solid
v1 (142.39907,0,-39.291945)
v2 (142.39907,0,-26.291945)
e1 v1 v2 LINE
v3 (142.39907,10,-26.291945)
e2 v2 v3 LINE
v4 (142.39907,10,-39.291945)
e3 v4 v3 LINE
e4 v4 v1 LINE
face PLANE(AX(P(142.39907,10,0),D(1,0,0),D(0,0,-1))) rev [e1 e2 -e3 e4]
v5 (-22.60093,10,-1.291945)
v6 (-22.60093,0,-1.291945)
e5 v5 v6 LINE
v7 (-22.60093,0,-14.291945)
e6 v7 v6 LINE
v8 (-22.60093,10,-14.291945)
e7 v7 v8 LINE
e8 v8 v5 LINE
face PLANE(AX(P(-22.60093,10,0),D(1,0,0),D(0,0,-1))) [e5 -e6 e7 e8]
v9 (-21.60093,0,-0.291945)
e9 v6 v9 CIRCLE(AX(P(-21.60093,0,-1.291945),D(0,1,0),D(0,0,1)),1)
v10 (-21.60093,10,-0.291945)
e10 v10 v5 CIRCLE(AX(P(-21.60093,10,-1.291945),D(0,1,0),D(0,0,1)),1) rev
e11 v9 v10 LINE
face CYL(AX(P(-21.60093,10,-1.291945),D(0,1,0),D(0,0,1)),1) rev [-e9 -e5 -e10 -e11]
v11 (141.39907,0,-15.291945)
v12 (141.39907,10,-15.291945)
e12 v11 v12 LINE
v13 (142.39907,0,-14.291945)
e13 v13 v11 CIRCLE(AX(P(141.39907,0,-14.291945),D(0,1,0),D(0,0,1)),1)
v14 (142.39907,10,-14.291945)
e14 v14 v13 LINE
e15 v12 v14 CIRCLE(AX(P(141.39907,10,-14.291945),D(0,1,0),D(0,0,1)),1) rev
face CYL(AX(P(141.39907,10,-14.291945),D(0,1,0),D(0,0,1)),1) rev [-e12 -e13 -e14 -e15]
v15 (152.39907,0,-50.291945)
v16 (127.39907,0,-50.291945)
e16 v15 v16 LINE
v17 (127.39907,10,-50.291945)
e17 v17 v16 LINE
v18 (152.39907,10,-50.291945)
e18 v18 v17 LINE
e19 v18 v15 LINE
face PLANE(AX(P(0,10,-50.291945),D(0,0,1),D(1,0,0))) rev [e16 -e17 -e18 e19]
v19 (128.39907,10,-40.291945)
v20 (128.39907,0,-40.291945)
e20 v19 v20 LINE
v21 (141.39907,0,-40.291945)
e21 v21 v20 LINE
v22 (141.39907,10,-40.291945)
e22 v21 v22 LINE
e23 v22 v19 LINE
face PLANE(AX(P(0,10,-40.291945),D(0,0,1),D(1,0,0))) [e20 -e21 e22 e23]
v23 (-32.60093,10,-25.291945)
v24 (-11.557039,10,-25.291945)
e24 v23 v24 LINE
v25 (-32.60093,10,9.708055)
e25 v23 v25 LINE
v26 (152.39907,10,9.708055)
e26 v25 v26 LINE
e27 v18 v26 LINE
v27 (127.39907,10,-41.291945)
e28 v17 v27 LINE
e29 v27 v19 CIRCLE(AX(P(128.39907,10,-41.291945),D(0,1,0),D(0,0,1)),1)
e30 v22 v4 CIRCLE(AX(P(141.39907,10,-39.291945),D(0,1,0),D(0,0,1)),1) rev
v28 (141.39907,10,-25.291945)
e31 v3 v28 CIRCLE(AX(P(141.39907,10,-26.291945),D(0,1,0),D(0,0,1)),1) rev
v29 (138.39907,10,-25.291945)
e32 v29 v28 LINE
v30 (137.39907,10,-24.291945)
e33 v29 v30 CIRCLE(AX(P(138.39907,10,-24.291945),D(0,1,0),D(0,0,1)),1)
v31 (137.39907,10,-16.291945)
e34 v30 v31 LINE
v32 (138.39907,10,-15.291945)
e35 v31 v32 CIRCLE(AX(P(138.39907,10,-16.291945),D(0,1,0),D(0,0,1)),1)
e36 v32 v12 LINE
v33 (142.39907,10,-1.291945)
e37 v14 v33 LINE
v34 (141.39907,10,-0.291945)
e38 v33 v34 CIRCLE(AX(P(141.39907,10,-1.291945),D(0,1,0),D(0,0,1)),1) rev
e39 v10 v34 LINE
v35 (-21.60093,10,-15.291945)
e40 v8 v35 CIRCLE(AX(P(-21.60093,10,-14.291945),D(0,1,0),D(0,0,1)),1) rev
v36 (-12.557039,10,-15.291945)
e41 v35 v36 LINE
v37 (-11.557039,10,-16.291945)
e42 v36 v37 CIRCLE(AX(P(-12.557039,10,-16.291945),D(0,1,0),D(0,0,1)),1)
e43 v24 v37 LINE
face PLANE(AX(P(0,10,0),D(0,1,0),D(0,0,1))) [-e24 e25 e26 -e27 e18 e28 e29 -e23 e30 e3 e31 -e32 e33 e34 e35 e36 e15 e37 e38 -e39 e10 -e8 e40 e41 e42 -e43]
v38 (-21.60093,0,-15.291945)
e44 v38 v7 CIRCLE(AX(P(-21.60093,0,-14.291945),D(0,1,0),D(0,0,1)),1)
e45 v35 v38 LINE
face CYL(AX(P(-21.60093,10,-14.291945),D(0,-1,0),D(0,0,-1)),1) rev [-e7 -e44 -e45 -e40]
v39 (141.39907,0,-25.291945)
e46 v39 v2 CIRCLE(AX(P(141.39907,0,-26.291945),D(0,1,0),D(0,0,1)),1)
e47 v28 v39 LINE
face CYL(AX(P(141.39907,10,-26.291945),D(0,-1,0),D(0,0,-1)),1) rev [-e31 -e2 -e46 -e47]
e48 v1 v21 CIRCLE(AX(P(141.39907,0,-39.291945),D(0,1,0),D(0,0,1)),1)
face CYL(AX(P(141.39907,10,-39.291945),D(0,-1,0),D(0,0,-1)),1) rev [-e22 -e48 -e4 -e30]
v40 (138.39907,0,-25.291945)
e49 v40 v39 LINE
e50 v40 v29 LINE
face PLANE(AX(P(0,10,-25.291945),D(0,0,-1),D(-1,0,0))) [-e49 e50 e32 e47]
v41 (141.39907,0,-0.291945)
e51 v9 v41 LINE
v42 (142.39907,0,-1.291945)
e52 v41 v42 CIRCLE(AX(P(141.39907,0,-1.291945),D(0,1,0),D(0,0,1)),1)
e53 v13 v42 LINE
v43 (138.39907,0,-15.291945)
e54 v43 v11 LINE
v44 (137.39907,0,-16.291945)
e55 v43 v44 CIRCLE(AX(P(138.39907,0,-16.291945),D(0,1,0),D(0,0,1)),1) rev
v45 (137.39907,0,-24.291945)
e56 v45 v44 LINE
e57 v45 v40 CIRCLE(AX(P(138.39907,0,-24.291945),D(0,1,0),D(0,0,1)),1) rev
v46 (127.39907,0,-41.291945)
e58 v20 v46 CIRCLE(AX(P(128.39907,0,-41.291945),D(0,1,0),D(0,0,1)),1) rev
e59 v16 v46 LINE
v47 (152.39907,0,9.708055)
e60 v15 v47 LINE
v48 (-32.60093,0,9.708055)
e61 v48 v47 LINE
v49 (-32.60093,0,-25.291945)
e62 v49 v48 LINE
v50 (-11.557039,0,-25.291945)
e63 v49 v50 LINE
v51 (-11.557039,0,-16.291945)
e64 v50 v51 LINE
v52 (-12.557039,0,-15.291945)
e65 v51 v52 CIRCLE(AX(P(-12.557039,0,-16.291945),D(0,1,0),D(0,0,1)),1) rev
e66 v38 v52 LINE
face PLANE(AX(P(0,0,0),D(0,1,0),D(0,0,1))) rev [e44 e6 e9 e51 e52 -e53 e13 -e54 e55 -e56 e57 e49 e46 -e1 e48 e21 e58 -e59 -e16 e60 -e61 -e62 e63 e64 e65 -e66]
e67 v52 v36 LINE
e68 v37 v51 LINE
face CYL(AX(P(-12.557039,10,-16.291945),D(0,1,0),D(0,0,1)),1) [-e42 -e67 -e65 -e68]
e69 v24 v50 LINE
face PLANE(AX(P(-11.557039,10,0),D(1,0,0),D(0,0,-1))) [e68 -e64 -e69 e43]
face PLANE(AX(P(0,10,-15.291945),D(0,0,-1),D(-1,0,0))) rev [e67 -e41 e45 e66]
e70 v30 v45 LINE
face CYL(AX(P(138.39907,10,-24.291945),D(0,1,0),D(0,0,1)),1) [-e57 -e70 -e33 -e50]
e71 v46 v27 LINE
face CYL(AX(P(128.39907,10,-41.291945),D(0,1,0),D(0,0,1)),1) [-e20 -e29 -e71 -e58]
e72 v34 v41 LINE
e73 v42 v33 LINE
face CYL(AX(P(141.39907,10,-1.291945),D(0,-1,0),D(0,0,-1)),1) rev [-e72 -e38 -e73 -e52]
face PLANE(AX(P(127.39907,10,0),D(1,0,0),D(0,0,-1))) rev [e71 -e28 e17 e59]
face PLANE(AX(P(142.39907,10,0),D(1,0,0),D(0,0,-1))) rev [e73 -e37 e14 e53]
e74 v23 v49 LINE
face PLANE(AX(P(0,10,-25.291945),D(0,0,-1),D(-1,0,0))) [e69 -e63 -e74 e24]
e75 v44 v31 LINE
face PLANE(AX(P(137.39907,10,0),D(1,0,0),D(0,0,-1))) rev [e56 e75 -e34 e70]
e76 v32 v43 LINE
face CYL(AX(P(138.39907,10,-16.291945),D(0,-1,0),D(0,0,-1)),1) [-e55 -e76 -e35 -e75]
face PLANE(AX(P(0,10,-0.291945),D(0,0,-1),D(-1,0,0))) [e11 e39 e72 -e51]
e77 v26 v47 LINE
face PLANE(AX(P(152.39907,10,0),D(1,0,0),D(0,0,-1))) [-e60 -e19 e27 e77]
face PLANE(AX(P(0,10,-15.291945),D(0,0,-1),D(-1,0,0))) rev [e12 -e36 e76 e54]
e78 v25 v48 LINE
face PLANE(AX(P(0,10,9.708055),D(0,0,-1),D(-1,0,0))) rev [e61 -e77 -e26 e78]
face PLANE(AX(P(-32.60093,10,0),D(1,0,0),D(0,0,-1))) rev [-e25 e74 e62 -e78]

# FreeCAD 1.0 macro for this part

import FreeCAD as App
import Part
import Sketcher
from FreeCAD import Vector


def edges_at(feature, points):
    """Names of the edges that pass closest to the given points."""
    edges = feature.Shape.Edges
    near = lambda p: min(range(len(edges)), key=lambda i: edges[i].distToShape(Part.Vertex(*p))[0])
    return sorted({f"Edge{near(p) + 1}" for p in points})

doc = App.newDocument("Part")
body = doc.addObject("PartDesign::Body", "Body")

# Sketch on XZ plane
sketch1 = body.newObject("Sketcher::SketchObject", "Sketch")
sketch1.AttachmentSupport = (doc.getObject("XZ_Plane"), [""])
sketch1.MapMode = "FlatFace"
sketch1.addGeometry(Part.LineSegment(Vector(142, 0, 0), Vector(-23, 0, 0)), False)
sketch1.addGeometry(Part.LineSegment(Vector(-23, 0, 0), Vector(-23, -15, 0)), False)
sketch1.addGeometry(Part.LineSegment(Vector(-23, -15, 0), Vector(-12, -15, 0)), False)
sketch1.addGeometry(Part.LineSegment(Vector(-12, -15, 0), Vector(-12, -25, 0)), False)
sketch1.addGeometry(Part.LineSegment(Vector(-12, -25, 0), Vector(-33, -25, 0)), False)
sketch1.addGeometry(Part.LineSegment(Vector(-33, -25, 0), Vector(-33, 10, 0)), False)
sketch1.addGeometry(Part.LineSegment(Vector(-33, 10, 0), Vector(152, 10, 0)), False)
sketch1.addGeometry(Part.LineSegment(Vector(152, 10, 0), Vector(152, -50, 0)), False)
sketch1.addGeometry(Part.LineSegment(Vector(152, -50, 0), Vector(127, -50, 0)), False)
sketch1.addGeometry(Part.LineSegment(Vector(127, -50, 0), Vector(127, -40, 0)), False)
sketch1.addGeometry(Part.LineSegment(Vector(127, -40, 0), Vector(142, -40, 0)), False)
sketch1.addGeometry(Part.LineSegment(Vector(142, -40, 0), Vector(142, -25, 0)), False)
sketch1.addGeometry(Part.LineSegment(Vector(142, -25, 0), Vector(137, -25, 0)), False)
sketch1.addGeometry(Part.LineSegment(Vector(137, -25, 0), Vector(137, -15, 0)), False)
sketch1.addGeometry(Part.LineSegment(Vector(137, -15, 0), Vector(142, -15, 0)), False)
sketch1.addGeometry(Part.LineSegment(Vector(142, -15, 0), Vector(142, 0, 0)), False)
sketch1.addConstraint(Sketcher.Constraint("Coincident", 0, 2, 1, 1))
sketch1.addConstraint(Sketcher.Constraint("Coincident", 1, 2, 2, 1))
sketch1.addConstraint(Sketcher.Constraint("Coincident", 2, 2, 3, 1))
sketch1.addConstraint(Sketcher.Constraint("Coincident", 3, 2, 4, 1))
sketch1.addConstraint(Sketcher.Constraint("Coincident", 4, 2, 5, 1))
sketch1.addConstraint(Sketcher.Constraint("Coincident", 5, 2, 6, 1))
sketch1.addConstraint(Sketcher.Constraint("Coincident", 6, 2, 7, 1))
sketch1.addConstraint(Sketcher.Constraint("Coincident", 7, 2, 8, 1))
sketch1.addConstraint(Sketcher.Constraint("Coincident", 8, 2, 9, 1))
sketch1.addConstraint(Sketcher.Constraint("Coincident", 9, 2, 10, 1))
sketch1.addConstraint(Sketcher.Constraint("Coincident", 10, 2, 11, 1))
sketch1.addConstraint(Sketcher.Constraint("Coincident", 11, 2, 12, 1))
sketch1.addConstraint(Sketcher.Constraint("Coincident", 12, 2, 13, 1))
sketch1.addConstraint(Sketcher.Constraint("Coincident", 13, 2, 14, 1))
sketch1.addConstraint(Sketcher.Constraint("Coincident", 14, 2, 15, 1))
sketch1.addConstraint(Sketcher.Constraint("Coincident", 15, 2, 0, 1))
sketch1.addConstraint(Sketcher.Constraint("Horizontal", 0))
sketch1.addConstraint(Sketcher.Constraint("Vertical", 1))
sketch1.addConstraint(Sketcher.Constraint("Horizontal", 2))
sketch1.addConstraint(Sketcher.Constraint("Vertical", 3))
sketch1.addConstraint(Sketcher.Constraint("Horizontal", 4))
sketch1.addConstraint(Sketcher.Constraint("Vertical", 5))
sketch1.addConstraint(Sketcher.Constraint("Horizontal", 6))
sketch1.addConstraint(Sketcher.Constraint("Vertical", 7))
sketch1.addConstraint(Sketcher.Constraint("Horizontal", 8))
sketch1.addConstraint(Sketcher.Constraint("Vertical", 9))
sketch1.addConstraint(Sketcher.Constraint("Horizontal", 10))
sketch1.addConstraint(Sketcher.Constraint("Vertical", 11))
sketch1.addConstraint(Sketcher.Constraint("Horizontal", 12))
sketch1.addConstraint(Sketcher.Constraint("Vertical", 13))
sketch1.addConstraint(Sketcher.Constraint("Horizontal", 14))
sketch1.addConstraint(Sketcher.Constraint("Vertical", 15))
sketch1.addConstraint(Sketcher.Constraint("Horizontal", 4, 2, 11, 2))
sketch1.addConstraint(Sketcher.Constraint("Horizontal", 2, 2, 13, 2))
sketch1.addConstraint(Sketcher.Constraint("Vertical", 11, 2, 14, 2))
sketch1.addConstraint(Sketcher.Constraint("Equal", 10, 1))
sketch1.addConstraint(Sketcher.Constraint("Equal", 3, 9))
sketch1.addConstraint(Sketcher.Constraint("Equal", 1, 11))
sketch1.addConstraint(Sketcher.Constraint("DistanceX", 0, 2, 0, 1, 165.0))
sketch1.addConstraint(Sketcher.Constraint("DistanceX", 6, 1, 6, 2, 185.0))
sketch1.addConstraint(Sketcher.Constraint("DistanceX", 8, 2, 8, 1, 25.0))
sketch1.addConstraint(Sketcher.Constraint("DistanceX", 10, 1, 10, 2, 15.0))
sketch1.addConstraint(Sketcher.Constraint("DistanceX", 12, 2, 12, 1, 5.0))
sketch1.addConstraint(Sketcher.Constraint("DistanceY", 3, 2, 3, 1, 10.0))
sketch1.addConstraint(Sketcher.Constraint("DistanceY", 5, 1, 5, 2, 35.0))
sketch1.addConstraint(Sketcher.Constraint("DistanceX", 2, 1, 2, 2, 11.043891))
sketch1.addConstraint(Sketcher.Constraint("DistanceX", 0, 2, -1, 1, 22.60093))
sketch1.addConstraint(Sketcher.Constraint("DistanceY", 0, 2, -1, 1, 0.291945))
pad1 = body.newObject("PartDesign::Pad", "Pad")
pad1.Profile = sketch1
pad1.Length = 10
pad1.Reversed = True
doc.recompute()

fillet = body.newObject("PartDesign::Fillet", "Fillet")
fillet.Base = (pad1, edges_at(pad1, [
    (-11.557, 5, -15.292),
    (-22.601, 5, -15.292),
    (-22.601, 5, -0.292),
    (142.399, 5, -0.292),
    (142.399, 5, -15.292),
    (137.399, 5, -15.292),
    (137.399, 5, -25.292),
    (142.399, 5, -25.292),
    (142.399, 5, -40.292),
    (127.399, 5, -40.292),
]))
fillet.Radius = 1

doc.recompute()
